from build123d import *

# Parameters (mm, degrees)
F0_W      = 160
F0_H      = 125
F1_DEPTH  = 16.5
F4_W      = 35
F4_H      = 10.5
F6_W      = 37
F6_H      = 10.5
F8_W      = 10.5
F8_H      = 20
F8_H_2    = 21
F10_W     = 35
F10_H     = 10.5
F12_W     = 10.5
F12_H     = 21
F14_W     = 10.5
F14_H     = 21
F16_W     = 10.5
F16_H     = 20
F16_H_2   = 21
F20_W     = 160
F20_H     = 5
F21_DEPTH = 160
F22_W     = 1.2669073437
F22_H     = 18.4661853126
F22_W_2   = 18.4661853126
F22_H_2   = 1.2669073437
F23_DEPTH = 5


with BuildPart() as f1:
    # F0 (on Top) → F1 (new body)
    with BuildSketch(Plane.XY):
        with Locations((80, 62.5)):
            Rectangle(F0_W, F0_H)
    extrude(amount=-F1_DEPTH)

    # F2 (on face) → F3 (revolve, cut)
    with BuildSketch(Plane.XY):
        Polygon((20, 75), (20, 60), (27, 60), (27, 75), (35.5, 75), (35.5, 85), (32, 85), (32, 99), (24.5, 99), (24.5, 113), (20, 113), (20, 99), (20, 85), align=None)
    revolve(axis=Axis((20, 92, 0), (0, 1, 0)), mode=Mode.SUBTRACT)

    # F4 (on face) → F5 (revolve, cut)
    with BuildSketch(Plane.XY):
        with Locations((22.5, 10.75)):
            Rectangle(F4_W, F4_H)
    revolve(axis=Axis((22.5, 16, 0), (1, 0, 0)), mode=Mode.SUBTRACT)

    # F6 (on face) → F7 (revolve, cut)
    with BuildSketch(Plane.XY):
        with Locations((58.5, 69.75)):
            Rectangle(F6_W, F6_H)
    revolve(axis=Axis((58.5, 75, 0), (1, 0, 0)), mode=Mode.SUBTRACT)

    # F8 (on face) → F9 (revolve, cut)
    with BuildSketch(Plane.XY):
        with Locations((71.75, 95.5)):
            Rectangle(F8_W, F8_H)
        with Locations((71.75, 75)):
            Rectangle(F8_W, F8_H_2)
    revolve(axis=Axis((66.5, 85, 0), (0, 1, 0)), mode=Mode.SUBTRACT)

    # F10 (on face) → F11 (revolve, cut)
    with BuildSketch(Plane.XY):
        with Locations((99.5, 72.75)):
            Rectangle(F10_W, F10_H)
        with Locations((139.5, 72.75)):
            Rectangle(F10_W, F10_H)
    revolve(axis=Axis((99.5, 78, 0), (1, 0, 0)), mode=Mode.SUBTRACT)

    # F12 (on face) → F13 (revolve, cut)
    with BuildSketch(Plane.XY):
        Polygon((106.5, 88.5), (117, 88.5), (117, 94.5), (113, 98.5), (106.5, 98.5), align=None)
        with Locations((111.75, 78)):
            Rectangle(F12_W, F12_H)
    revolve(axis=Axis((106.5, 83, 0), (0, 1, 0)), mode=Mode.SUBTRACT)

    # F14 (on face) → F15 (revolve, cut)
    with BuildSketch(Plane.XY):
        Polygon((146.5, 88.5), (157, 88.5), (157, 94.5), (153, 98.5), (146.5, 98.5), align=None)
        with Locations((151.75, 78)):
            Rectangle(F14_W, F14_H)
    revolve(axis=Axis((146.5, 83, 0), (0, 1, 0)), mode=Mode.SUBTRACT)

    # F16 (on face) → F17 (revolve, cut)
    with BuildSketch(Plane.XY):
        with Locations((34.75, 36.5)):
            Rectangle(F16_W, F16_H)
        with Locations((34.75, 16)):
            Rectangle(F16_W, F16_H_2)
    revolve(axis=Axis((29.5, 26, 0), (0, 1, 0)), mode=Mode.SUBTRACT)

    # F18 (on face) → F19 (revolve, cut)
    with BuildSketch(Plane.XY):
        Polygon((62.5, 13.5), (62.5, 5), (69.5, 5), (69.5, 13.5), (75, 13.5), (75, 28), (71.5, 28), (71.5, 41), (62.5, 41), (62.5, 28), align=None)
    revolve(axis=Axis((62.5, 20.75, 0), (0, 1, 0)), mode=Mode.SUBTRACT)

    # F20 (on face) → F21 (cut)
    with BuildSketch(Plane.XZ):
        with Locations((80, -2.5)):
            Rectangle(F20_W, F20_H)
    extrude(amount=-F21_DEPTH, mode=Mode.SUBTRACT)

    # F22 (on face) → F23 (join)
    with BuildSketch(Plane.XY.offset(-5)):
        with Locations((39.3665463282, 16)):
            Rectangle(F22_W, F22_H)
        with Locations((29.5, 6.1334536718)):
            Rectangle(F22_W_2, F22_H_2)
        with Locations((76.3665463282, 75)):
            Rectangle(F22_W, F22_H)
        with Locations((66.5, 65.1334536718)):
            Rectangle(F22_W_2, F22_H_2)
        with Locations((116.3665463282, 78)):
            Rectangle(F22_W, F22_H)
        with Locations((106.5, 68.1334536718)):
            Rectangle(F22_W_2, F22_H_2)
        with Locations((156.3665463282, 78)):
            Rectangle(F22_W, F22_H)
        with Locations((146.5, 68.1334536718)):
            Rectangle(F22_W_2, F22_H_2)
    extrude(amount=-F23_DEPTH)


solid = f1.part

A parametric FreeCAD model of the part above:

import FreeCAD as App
import Part
import Sketcher
from FreeCAD import Vector
Q = App.Units.Quantity


def add_polygon(sketch, points):
    """Adds a closed chain of lines whose ends are joined by coincident constraints."""
    first, n = sketch.GeometryCount, len(points)
    for a, b in zip(points, points[1:] + points[:1]):
        sketch.addGeometry(Part.LineSegment(App.Vector(*a, 0), App.Vector(*b, 0)), False)
    for i in range(n):
        sketch.addConstraint(Sketcher.Constraint("Coincident", first + i, 2, first + (i + 1) % n, 1))

doc = App.newDocument("Part")
body = doc.addObject("PartDesign::Body", "Body")

sketch1 = body.newObject("Sketcher::SketchObject", "Sketch")
sketch1.AttachmentSupport = (doc.getObject("XY_Plane"), [""])
sketch1.MapMode = "FlatFace"
add_polygon(sketch1, [(0, 125), (0, 0), (160, 0), (160, 125)])
sketch1.addConstraint([
    Sketcher.Constraint("Vertical", 0),
    Sketcher.Constraint("Horizontal", 1),
    Sketcher.Constraint("Vertical", 2),
    Sketcher.Constraint("Horizontal", 3),
    Sketcher.Constraint("Coincident", 0, 2, -1, 1),
    Sketcher.Constraint("DistanceX", 1, 1, 1, 2, 160.0),
    Sketcher.Constraint("DistanceY", 0, 2, 0, 1, 125.0),
])
pad1 = body.newObject("PartDesign::Pad", "Pad")
pad1.Profile = sketch1
pad1.Length = 16.5
pad1.Reversed = True

sketch2 = body.newObject("Sketcher::SketchObject", "Sketch001")
sketch2.AttachmentSupport = (doc.getObject("XY_Plane"), [""])
sketch2.MapMode = "FlatFace"
add_polygon(sketch2, [(20, 60), (27, 60), (27, 75), (35.5, 75), (35.5, 85), (32, 85), (32, 99), (24.5, 99), (24.5, 113), (20, 113)])
sketch2.addGeometry(Part.LineSegment(Vector(20, 60, 0), Vector(20, 113, 0)), True)
sketch2.addConstraint([
    Sketcher.Constraint("Horizontal", 0),
    Sketcher.Constraint("Vertical", 1),
    Sketcher.Constraint("Horizontal", 2),
    Sketcher.Constraint("Vertical", 3),
    Sketcher.Constraint("Horizontal", 4),
    Sketcher.Constraint("Vertical", 5),
    Sketcher.Constraint("Horizontal", 6),
    Sketcher.Constraint("Vertical", 7),
    Sketcher.Constraint("Horizontal", 8),
    Sketcher.Constraint("Vertical", 9),
    Sketcher.Constraint("Vertical", 10),
    Sketcher.Constraint("Coincident", 10, 1, 9, 2),
    Sketcher.Constraint("Horizontal", 7, 2, 10, 2),
    Sketcher.Constraint("Equal", 5, 7),
    Sketcher.Constraint("DistanceX", 0, 1, 0, 2, 7.0),
    Sketcher.Constraint("DistanceY", 1, 1, 1, 2, 15.0),
    Sketcher.Constraint("DistanceY", 3, 1, 3, 2, 10.0),
    Sketcher.Constraint("DistanceY", 5, 1, 5, 2, 14.0),
    Sketcher.Constraint("DistanceX", 2, 1, 2, 2, 8.5),
    Sketcher.Constraint("DistanceX", 4, 2, 4, 1, 3.5),
    Sketcher.Constraint("DistanceX", 6, 2, 6, 1, 7.5),
    Sketcher.Constraint("DistanceX", -1, 1, 0, 2, 27.0),
    Sketcher.Constraint("DistanceY", -1, 1, 0, 2, 60.0),
])
groove = body.newObject("PartDesign::Groove", "Groove")
groove.Profile = sketch2
groove.ReferenceAxis = (sketch2, ["Axis0"])
groove.Angle = 360

sketch3 = body.newObject("Sketcher::SketchObject", "Sketch002")
sketch3.AttachmentSupport = (doc.getObject("XY_Plane"), [""])
sketch3.MapMode = "FlatFace"
add_polygon(sketch3, [(5, 16), (5, 6), (40, 6), (40, 16)])
sketch3.addGeometry(Part.LineSegment(Vector(5, 16, 0), Vector(40, 16, 0)), True)
sketch3.addConstraint([
    Sketcher.Constraint("Vertical", 0),
    Sketcher.Constraint("Horizontal", 1),
    Sketcher.Constraint("Vertical", 2),
    Sketcher.Constraint("Horizontal", 3),
    Sketcher.Constraint("Horizontal", 4),
    Sketcher.Constraint("Coincident", 4, 1, 3, 2),
    Sketcher.Constraint("Vertical", 1, 2, 4, 2),
    Sketcher.Constraint("DistanceX", 1, 1, 1, 2, 35.0),
    Sketcher.Constraint("DistanceY", 0, 2, 0, 1, 10.5),
    Sketcher.Constraint("DistanceX", -1, 1, 0, 2, 5.0),
    Sketcher.Constraint("DistanceY", -1, 1, 2, 2, 16.0),
])
groove2 = body.newObject("PartDesign::Groove", "Groove001")
groove2.Profile = sketch3
groove2.ReferenceAxis = (sketch3, ["Axis0"])
groove2.Angle = 360

sketch4 = body.newObject("Sketcher::SketchObject", "Sketch003")
sketch4.AttachmentSupport = (doc.getObject("XY_Plane"), [""])
sketch4.MapMode = "FlatFace"
add_polygon(sketch4, [(40, 75), (40, 64), (77, 64), (77, 75)])
sketch4.addGeometry(Part.LineSegment(Vector(40, 75, 0), Vector(77, 75, 0)), True)
sketch4.addConstraint([
    Sketcher.Constraint("Vertical", 0),
    Sketcher.Constraint("Horizontal", 1),
    Sketcher.Constraint("Vertical", 2),
    Sketcher.Constraint("Horizontal", 3),
    Sketcher.Constraint("Horizontal", 4),
    Sketcher.Constraint("Coincident", 4, 1, 3, 2),
    Sketcher.Constraint("Vertical", 1, 2, 4, 2),
    Sketcher.Constraint("DistanceX", 1, 1, 1, 2, 37.0),
    Sketcher.Constraint("DistanceY", 0, 2, 0, 1, 10.5),
    Sketcher.Constraint("DistanceX", -1, 1, 0, 2, 40.0),
    Sketcher.Constraint("DistanceY", -1, 1, 2, 2, 75.0),
])
groove3 = body.newObject("PartDesign::Groove", "Groove002")
groove3.Profile = sketch4
groove3.ReferenceAxis = (sketch4, ["Axis0"])
groove3.Angle = 360

sketch5 = body.newObject("Sketcher::SketchObject", "Sketch004")
sketch5.AttachmentSupport = (doc.getObject("XY_Plane"), [""])
sketch5.MapMode = "FlatFace"
add_polygon(sketch5, [(66, 106), (66, 64), (77, 64), (77, 106)])
sketch5.addGeometry(Part.LineSegment(Vector(66, 64, 0), Vector(66, 106, 0)), True)
sketch5.addConstraint([
    Sketcher.Constraint("Vertical", 0),
    Sketcher.Constraint("Horizontal", 1),
    Sketcher.Constraint("Vertical", 2),
    Sketcher.Constraint("Horizontal", 3),
    Sketcher.Constraint("Vertical", 4),
    Sketcher.Constraint("Coincident", 4, 1, 0, 2),
    Sketcher.Constraint("Horizontal", 2, 2, 4, 2),
    Sketcher.Constraint("DistanceY", 0, 2, 0, 1, 41.0),
    Sketcher.Constraint("DistanceX", 1, 1, 1, 2, 10.5),
    Sketcher.Constraint("DistanceX", -1, 1, 1, 2, 77.0),
    Sketcher.Constraint("DistanceY", -1, 1, 0, 2, 64.5),
])
groove4 = body.newObject("PartDesign::Groove", "Groove003")
groove4.Profile = sketch5
groove4.ReferenceAxis = (sketch5, ["Axis0"])
groove4.Angle = 360

sketch6 = body.newObject("Sketcher::SketchObject", "Sketch005")
sketch6.AttachmentSupport = (doc.getObject("XY_Plane"), [""])
sketch6.MapMode = "FlatFace"
add_polygon(sketch6, [(82, 78), (82, 68), (117, 68), (117, 78)])
add_polygon(sketch6, [(122, 78), (122, 68), (157, 68), (157, 78)])
sketch6.addGeometry(Part.LineSegment(Vector(82, 78, 0), Vector(157, 78, 0)), True)
sketch6.addConstraint([
    Sketcher.Constraint("Vertical", 0),
    Sketcher.Constraint("Horizontal", 1),
    Sketcher.Constraint("Vertical", 2),
    Sketcher.Constraint("Horizontal", 3),
    Sketcher.Constraint("Vertical", 4),
    Sketcher.Constraint("Horizontal", 5),
    Sketcher.Constraint("Vertical", 6),
    Sketcher.Constraint("Horizontal", 7),
    Sketcher.Constraint("Horizontal", 8),
    Sketcher.Constraint("Coincident", 8, 1, 3, 2),
    Sketcher.Constraint("Coincident", 8, 2, 6, 2),
    Sketcher.Constraint("Horizontal", 1, 2, 4, 2),
    Sketcher.Constraint("Equal", 3, 5),
    Sketcher.Constraint("DistanceX", 1, 1, 1, 2, 35.0),
    Sketcher.Constraint("DistanceX", 8, 1, 8, 2, 75.0),
    Sketcher.Constraint("DistanceY", 0, 2, 0, 1, 10.5),
    Sketcher.Constraint("DistanceX", -1, 1, 0, 2, 82.0),
    Sketcher.Constraint("DistanceY", -1, 1, 2, 2, 78.0),
])
groove5 = body.newObject("PartDesign::Groove", "Groove004")
groove5.Profile = sketch6
groove5.ReferenceAxis = (sketch6, ["Axis0"])
groove5.Angle = 360

sketch7 = body.newObject("Sketcher::SketchObject", "Sketch006")
sketch7.AttachmentSupport = (doc.getObject("XY_Plane"), [""])
sketch7.MapMode = "FlatFace"
add_polygon(sketch7, [(117, 94), (113, 98), (106, 98), (106, 68), (117, 68)])
sketch7.addGeometry(Part.LineSegment(Vector(106, 68, 0), Vector(106, 98, 0)), True)
sketch7.addConstraint([
    Sketcher.Constraint("Horizontal", 1),
    Sketcher.Constraint("Vertical", 2),
    Sketcher.Constraint("Horizontal", 3),
    Sketcher.Constraint("Vertical", 4),
    Sketcher.Constraint("Vertical", 5),
    Sketcher.Constraint("Coincident", 5, 1, 2, 2),
    Sketcher.Constraint("Horizontal", 0, 2, 5, 2),
    Sketcher.Constraint("DistanceY", 2, 2, 2, 1, 31.0),
    Sketcher.Constraint("DistanceY", 4, 1, 4, 2, 27.0),
    Sketcher.Constraint("Angle", 0, Q("135 deg")),
    Sketcher.Constraint("DistanceX", 1, 2, 1, 1, 6.5),
    Sketcher.Constraint("DistanceX", -1, 1, 0, 2, 113.0),
    Sketcher.Constraint("DistanceY", -1, 1, 0, 2, 98.5),
])
groove6 = body.newObject("PartDesign::Groove", "Groove005")
groove6.Profile = sketch7
groove6.ReferenceAxis = (sketch7, ["Axis0"])
groove6.Angle = 360

sketch8 = body.newObject("Sketcher::SketchObject", "Sketch007")
sketch8.AttachmentSupport = (doc.getObject("XY_Plane"), [""])
sketch8.MapMode = "FlatFace"
add_polygon(sketch8, [(157, 94), (153, 98), (146, 98), (146, 68), (157, 68)])
sketch8.addGeometry(Part.LineSegment(Vector(146, 68, 0), Vector(146, 98, 0)), True)
sketch8.addConstraint([
    Sketcher.Constraint("Horizontal", 1),
    Sketcher.Constraint("Vertical", 2),
    Sketcher.Constraint("Horizontal", 3),
    Sketcher.Constraint("Vertical", 4),
    Sketcher.Constraint("Vertical", 5),
    Sketcher.Constraint("Coincident", 5, 1, 2, 2),
    Sketcher.Constraint("Horizontal", 0, 2, 5, 2),
    Sketcher.Constraint("DistanceY", 2, 2, 2, 1, 31.0),
    Sketcher.Constraint("DistanceY", 4, 1, 4, 2, 27.0),
    Sketcher.Constraint("Angle", 0, Q("135 deg")),
    Sketcher.Constraint("DistanceX", 1, 2, 1, 1, 6.5),
    Sketcher.Constraint("DistanceX", -1, 1, 0, 2, 153.0),
    Sketcher.Constraint("DistanceY", -1, 1, 0, 2, 98.5),
])
groove7 = body.newObject("PartDesign::Groove", "Groove006")
groove7.Profile = sketch8
groove7.ReferenceAxis = (sketch8, ["Axis0"])
groove7.Angle = 360

sketch9 = body.newObject("Sketcher::SketchObject", "Sketch008")
sketch9.AttachmentSupport = (doc.getObject("XY_Plane"), [""])
sketch9.MapMode = "FlatFace"
add_polygon(sketch9, [(30, 46), (30, 6), (40, 6), (40, 46)])
sketch9.addGeometry(Part.LineSegment(Vector(30, 6, 0), Vector(30, 46, 0)), True)
sketch9.addConstraint([
    Sketcher.Constraint("Vertical", 0),
    Sketcher.Constraint("Horizontal", 1),
    Sketcher.Constraint("Vertical", 2),
    Sketcher.Constraint("Horizontal", 3),
    Sketcher.Constraint("Vertical", 4),
    Sketcher.Constraint("Coincident", 4, 1, 0, 2),
    Sketcher.Constraint("Horizontal", 2, 2, 4, 2),
    Sketcher.Constraint("DistanceY", 0, 2, 0, 1, 41.0),
    Sketcher.Constraint("DistanceX", 1, 1, 1, 2, 10.5),
    Sketcher.Constraint("DistanceX", -1, 1, 1, 2, 40.0),
    Sketcher.Constraint("DistanceY", -1, 1, 0, 2, 5.5),
])
groove8 = body.newObject("PartDesign::Groove", "Groove007")
groove8.Profile = sketch9
groove8.ReferenceAxis = (sketch9, ["Axis0"])
groove8.Angle = 360

sketch10 = body.newObject("Sketcher::SketchObject", "Sketch009")
sketch10.AttachmentSupport = (doc.getObject("XY_Plane"), [""])
sketch10.MapMode = "FlatFace"
add_polygon(sketch10, [(62.5, 5), (69.5, 5), (69.5, 13.5), (75, 13.5), (75, 28), (71.5, 28), (71.5, 41), (62.5, 41)])
sketch10.addGeometry(Part.LineSegment(Vector(62.5, 5, 0), Vector(62.5, 41, 0)), True)
sketch10.addConstraint([
    Sketcher.Constraint("Horizontal", 0),
    Sketcher.Constraint("Vertical", 1),
    Sketcher.Constraint("Horizontal", 2),
    Sketcher.Constraint("Vertical", 3),
    Sketcher.Constraint("Horizontal", 4),
    Sketcher.Constraint("Vertical", 5),
    Sketcher.Constraint("Horizontal", 6),
    Sketcher.Constraint("Vertical", 7),
    Sketcher.Constraint("Vertical", 8),
    Sketcher.Constraint("Coincident", 8, 1, 7, 2),
    Sketcher.Constraint("Horizontal", 5, 2, 8, 2),
    Sketcher.Constraint("DistanceX", 0, 1, 0, 2, 7.0),
    Sketcher.Constraint("DistanceX", 6, 2, 6, 1, 9.0),
    Sketcher.Constraint("DistanceY", 5, 1, 5, 2, 13.0),
    Sketcher.Constraint("DistanceY", 7, 2, 7, 1, 36.0),
    Sketcher.Constraint("DistanceX", 2, 1, 2, 2, 5.5),
    Sketcher.Constraint("DistanceY", 1, 1, 1, 2, 8.5),
    Sketcher.Constraint("DistanceY", -1, 1, 0, 2, 5.0),
    Sketcher.Constraint("DistanceX", -1, 1, 2, 2, 75.0),
])
groove9 = body.newObject("PartDesign::Groove", "Groove008")
groove9.Profile = sketch10
groove9.ReferenceAxis = (sketch10, ["Axis0"])
groove9.Angle = 360

sketch11 = body.newObject("Sketcher::SketchObject", "Sketch010")
sketch11.AttachmentSupport = (doc.getObject("XZ_Plane"), [""])
sketch11.MapMode = "FlatFace"
add_polygon(sketch11, [(0, 0), (0, -5), (160, -5), (160, 0)])
sketch11.addConstraint([
    Sketcher.Constraint("Vertical", 0),
    Sketcher.Constraint("Horizontal", 1),
    Sketcher.Constraint("Vertical", 2),
    Sketcher.Constraint("Horizontal", 3),
    Sketcher.Constraint("Coincident", 3, 2, -1, 1),
    Sketcher.Constraint("DistanceX", 1, 1, 1, 2, 160.0),
    Sketcher.Constraint("DistanceY", 0, 2, 0, 1, 5.0),
])
pocket1 = body.newObject("PartDesign::Pocket", "Pocket")
pocket1.Profile = sketch11
pocket1.Length = 160

sketch12 = body.newObject("Sketcher::SketchObject", "Sketch011")
sketch12.AttachmentSupport = (doc.getObject("XY_Plane"), [""])
sketch12.MapMode = "FlatFace"
sketch12.AttachmentOffset = App.Placement(Vector(0, 0, -5), App.Rotation())
add_polygon(sketch12, [(38.7, 25.2), (38.7, 6.8), (40, 6.8), (40, 25.2)])
add_polygon(sketch12, [(20.3, 6.8), (20.3, 5.5), (38.7, 5.5), (38.7, 6.8)])
add_polygon(sketch12, [(75.7, 84.2), (75.7, 65.8), (77, 65.8), (77, 84.2)])
add_polygon(sketch12, [(57.3, 65.8), (57.3, 64.5), (75.7, 64.5), (75.7, 65.8)])
add_polygon(sketch12, [(115.7, 87.2), (115.7, 68.8), (117, 68.8), (117, 87.2)])
add_polygon(sketch12, [(97.3, 68.8), (97.3, 67.5), (115.7, 67.5), (115.7, 68.8)])
add_polygon(sketch12, [(155.7, 87.2), (155.7, 68.8), (157, 68.8), (157, 87.2)])
add_polygon(sketch12, [(137.3, 68.8), (137.3, 67.5), (155.7, 67.5), (155.7, 68.8)])
sketch12.addConstraint([
    Sketcher.Constraint("Vertical", 0),
    Sketcher.Constraint("Horizontal", 1),
    Sketcher.Constraint("Vertical", 2),
    Sketcher.Constraint("Horizontal", 3),
    Sketcher.Constraint("Vertical", 4),
    Sketcher.Constraint("Horizontal", 5),
    Sketcher.Constraint("Vertical", 6),
    Sketcher.Constraint("Horizontal", 7),
    Sketcher.Constraint("Vertical", 8),
    Sketcher.Constraint("Horizontal", 9),
    Sketcher.Constraint("Vertical", 10),
    Sketcher.Constraint("Horizontal", 11),
    Sketcher.Constraint("Vertical", 12),
    Sketcher.Constraint("Horizontal", 13),
    Sketcher.Constraint("Vertical", 14),
    Sketcher.Constraint("Horizontal", 15),
    Sketcher.Constraint("Vertical", 16),
    Sketcher.Constraint("Horizontal", 17),
    Sketcher.Constraint("Vertical", 18),
    Sketcher.Constraint("Horizontal", 19),
    Sketcher.Constraint("Vertical", 20),
    Sketcher.Constraint("Horizontal", 21),
    Sketcher.Constraint("Vertical", 22),
    Sketcher.Constraint("Horizontal", 23),
    Sketcher.Constraint("Vertical", 24),
    Sketcher.Constraint("Horizontal", 25),
    Sketcher.Constraint("Vertical", 26),
    Sketcher.Constraint("Horizontal", 27),
    Sketcher.Constraint("Vertical", 28),
    Sketcher.Constraint("Horizontal", 29),
    Sketcher.Constraint("Vertical", 30),
    Sketcher.Constraint("Horizontal", 31),
    Sketcher.Constraint("Coincident", 6, 2, 0, 2),
    Sketcher.Constraint("Coincident", 14, 2, 8, 2),
    Sketcher.Constraint("Coincident", 22, 2, 16, 2),
    Sketcher.Constraint("Coincident", 30, 2, 24, 2),
    Sketcher.Constraint("Horizontal", 23, 2, 24, 2),
    Sketcher.Constraint("Horizontal", 19, 2, 26, 2),
    Sketcher.Constraint("Horizontal", 21, 2, 28, 2),
    Sketcher.Constraint("Equal", 3, 9),
    Sketcher.Constraint("Equal", 7, 13),
    Sketcher.Constraint("Equal", 11, 17),
    Sketcher.Constraint("Equal", 15, 21),
    Sketcher.Constraint("Equal", 19, 25),
    Sketcher.Constraint("Equal", 23, 29),
    Sketcher.Constraint("Equal", 31, 0),
    Sketcher.Constraint("Equal", 27, 4),
    Sketcher.Constraint("Equal", 2, 8),
    Sketcher.Constraint("Equal", 6, 12),
    Sketcher.Constraint("Equal", 10, 16),
    Sketcher.Constraint("Equal", 14, 20),
    Sketcher.Constraint("DistanceX", -1, 1, 1, 2, 40.0),
    Sketcher.Constraint("DistanceX", -1, 1, 9, 2, 77.0),
    Sketcher.Constraint("DistanceX", -1, 1, 17, 2, 117.0),
    Sketcher.Constraint("DistanceX", -1, 1, 25, 2, 157.0),
    Sketcher.Constraint("DistanceY", 1, 2, 8, 2, 59.0),
    Sketcher.Constraint("DistanceY", 9, 2, 16, 2, 3.0),
    Sketcher.Constraint("DistanceY", -1, 1, 4, 2, 5.5),
    Sketcher.Constraint("DistanceX", 1, 1, 1, 2, 1.266907),
    Sketcher.Constraint("DistanceX", 5, 1, 5, 2, 18.466185),
])
pad2 = body.newObject("PartDesign::Pad", "Pad001")
pad2.Profile = sketch12
pad2.Length = 5
pad2.Reversed = True

doc.recompute()
